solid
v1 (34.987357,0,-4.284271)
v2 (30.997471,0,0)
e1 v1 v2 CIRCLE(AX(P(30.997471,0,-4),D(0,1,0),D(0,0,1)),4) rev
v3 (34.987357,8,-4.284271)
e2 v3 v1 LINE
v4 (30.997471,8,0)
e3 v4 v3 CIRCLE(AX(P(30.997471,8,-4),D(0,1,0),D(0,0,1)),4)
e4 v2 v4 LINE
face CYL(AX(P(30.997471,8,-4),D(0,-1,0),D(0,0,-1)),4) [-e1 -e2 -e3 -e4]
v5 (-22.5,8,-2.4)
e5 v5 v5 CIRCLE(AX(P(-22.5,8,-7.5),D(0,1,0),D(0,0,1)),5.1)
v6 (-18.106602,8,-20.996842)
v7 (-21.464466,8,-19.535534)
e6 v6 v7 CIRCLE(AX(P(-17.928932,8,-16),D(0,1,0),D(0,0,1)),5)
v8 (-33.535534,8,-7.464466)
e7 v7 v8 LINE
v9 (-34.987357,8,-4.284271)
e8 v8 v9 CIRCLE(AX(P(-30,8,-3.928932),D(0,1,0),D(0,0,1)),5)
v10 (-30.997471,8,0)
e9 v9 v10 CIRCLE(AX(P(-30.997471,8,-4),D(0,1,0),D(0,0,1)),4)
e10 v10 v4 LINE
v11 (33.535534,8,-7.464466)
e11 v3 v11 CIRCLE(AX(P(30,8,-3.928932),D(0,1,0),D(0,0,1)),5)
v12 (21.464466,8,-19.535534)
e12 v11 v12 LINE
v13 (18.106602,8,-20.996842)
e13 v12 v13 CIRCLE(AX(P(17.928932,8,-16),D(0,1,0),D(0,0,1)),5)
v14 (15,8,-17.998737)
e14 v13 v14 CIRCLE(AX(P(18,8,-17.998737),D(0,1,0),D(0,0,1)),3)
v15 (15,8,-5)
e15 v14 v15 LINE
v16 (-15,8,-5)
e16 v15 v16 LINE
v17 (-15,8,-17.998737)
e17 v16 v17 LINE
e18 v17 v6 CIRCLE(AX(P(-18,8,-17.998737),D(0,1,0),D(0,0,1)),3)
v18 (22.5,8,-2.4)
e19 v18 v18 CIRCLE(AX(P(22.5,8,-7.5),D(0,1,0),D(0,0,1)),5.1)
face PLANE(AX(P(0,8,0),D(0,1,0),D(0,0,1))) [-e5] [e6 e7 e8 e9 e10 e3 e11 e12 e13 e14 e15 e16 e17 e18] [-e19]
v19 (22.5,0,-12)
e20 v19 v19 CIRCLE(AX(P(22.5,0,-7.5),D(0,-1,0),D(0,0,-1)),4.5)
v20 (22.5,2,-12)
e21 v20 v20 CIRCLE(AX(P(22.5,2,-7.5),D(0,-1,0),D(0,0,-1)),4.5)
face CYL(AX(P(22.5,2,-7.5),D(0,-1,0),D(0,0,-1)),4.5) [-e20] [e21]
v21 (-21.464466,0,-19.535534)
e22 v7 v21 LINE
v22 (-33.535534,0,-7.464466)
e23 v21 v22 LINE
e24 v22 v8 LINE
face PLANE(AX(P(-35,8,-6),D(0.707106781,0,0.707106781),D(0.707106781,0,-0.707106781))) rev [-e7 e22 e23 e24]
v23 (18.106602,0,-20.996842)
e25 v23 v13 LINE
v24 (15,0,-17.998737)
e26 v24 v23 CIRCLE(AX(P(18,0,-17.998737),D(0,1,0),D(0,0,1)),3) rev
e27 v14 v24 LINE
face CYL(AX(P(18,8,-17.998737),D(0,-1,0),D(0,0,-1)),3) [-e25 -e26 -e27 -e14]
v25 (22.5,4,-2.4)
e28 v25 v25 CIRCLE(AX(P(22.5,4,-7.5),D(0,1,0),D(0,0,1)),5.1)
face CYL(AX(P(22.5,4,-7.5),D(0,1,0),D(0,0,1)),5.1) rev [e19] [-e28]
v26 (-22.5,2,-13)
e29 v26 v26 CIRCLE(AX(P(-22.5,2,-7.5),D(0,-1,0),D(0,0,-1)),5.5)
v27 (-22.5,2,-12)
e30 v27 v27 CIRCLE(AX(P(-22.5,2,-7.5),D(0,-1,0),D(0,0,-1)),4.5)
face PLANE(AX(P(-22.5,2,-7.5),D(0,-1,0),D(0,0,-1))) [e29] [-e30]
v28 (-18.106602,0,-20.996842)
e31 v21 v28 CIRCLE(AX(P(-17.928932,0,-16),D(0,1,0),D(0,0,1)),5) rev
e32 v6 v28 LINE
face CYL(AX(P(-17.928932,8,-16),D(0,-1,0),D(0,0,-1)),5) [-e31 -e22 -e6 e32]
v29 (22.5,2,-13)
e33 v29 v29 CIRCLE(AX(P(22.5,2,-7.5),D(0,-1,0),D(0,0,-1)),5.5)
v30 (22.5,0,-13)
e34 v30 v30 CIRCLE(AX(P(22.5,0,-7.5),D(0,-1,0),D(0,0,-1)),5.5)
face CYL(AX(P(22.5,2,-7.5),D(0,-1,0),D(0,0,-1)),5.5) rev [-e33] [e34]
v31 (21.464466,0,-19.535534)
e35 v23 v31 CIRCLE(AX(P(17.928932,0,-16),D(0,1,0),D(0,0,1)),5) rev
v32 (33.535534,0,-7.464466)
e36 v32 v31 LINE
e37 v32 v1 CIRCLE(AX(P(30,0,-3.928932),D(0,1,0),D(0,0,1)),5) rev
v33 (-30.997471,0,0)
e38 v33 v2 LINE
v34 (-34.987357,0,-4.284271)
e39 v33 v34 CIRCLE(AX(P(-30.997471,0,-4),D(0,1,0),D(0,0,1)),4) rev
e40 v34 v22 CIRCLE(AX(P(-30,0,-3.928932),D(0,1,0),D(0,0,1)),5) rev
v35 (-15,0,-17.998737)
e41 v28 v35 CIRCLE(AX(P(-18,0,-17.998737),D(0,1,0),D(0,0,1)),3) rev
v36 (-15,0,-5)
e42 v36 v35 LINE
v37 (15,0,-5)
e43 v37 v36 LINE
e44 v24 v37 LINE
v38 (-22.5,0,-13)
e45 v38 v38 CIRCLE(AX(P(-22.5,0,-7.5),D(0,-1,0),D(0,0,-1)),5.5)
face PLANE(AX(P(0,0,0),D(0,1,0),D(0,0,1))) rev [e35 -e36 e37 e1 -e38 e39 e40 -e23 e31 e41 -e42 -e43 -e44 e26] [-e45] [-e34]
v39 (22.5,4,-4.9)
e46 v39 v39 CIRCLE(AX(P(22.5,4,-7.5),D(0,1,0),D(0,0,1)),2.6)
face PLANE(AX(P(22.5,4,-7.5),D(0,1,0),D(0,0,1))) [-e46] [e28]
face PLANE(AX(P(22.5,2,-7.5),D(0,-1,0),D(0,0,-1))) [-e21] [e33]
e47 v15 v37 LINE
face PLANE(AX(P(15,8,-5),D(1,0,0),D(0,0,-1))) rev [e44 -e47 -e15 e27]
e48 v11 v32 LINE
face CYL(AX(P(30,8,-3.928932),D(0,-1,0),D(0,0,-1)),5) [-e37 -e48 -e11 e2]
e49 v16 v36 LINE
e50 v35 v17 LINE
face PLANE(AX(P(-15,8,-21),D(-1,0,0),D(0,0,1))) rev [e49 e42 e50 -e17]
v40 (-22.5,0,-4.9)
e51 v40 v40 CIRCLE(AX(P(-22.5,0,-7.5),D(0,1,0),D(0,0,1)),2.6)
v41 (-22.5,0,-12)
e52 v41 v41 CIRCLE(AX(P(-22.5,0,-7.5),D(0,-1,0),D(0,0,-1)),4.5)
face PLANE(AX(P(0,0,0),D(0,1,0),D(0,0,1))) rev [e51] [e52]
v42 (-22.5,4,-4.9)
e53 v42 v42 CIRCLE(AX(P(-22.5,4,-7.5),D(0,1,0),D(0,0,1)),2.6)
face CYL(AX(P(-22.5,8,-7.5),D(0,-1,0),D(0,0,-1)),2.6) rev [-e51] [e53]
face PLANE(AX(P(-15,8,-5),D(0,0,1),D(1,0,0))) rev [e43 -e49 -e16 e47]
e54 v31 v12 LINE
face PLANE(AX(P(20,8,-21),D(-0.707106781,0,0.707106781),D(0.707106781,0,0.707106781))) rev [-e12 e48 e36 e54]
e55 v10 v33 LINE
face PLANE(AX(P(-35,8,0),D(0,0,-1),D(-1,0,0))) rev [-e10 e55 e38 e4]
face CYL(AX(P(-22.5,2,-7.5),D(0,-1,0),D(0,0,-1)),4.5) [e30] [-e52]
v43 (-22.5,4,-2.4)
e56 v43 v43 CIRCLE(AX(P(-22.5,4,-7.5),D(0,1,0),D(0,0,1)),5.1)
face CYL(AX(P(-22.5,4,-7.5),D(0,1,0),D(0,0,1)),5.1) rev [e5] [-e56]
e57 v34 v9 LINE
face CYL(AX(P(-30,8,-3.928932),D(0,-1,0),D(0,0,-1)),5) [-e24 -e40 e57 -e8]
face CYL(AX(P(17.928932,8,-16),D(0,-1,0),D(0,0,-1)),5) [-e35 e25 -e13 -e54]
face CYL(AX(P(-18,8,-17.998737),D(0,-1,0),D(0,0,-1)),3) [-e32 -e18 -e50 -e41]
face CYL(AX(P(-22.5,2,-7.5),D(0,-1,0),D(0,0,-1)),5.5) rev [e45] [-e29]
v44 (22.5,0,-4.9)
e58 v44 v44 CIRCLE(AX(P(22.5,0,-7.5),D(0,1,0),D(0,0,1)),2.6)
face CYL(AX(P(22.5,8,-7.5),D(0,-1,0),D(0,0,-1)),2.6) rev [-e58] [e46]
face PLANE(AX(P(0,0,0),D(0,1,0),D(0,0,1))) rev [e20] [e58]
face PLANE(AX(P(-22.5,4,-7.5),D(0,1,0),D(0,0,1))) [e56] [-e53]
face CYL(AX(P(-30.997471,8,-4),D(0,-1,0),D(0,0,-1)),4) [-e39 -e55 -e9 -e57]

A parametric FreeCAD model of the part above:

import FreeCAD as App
import Part
import Sketcher
Q = App.Units.Quantity


def edges_at(feature, points):
    """Names of the edges that pass closest to the given points."""
    edges = feature.Shape.Edges
    near = lambda p: min(range(len(edges)), key=lambda i: edges[i].distToShape(Part.Vertex(*p))[0])
    return sorted({f"Edge{near(p) + 1}" for p in points})

doc = App.newDocument("Part")
body = doc.addObject("PartDesign::Body", "Body")

sketch1 = body.newObject("Sketcher::SketchObject", "Sketch")
sketch1.AttachmentSupport = (doc.getObject("XZ_Plane"), [""])
sketch1.MapMode = "FlatFace"
sketch1.addGeometry(Part.LineSegment(App.Vector(-35, 0, 0), App.Vector(35, 0, 0)), False)
sketch1.addGeometry(Part.LineSegment(App.Vector(35, 0, 0), App.Vector(35, -6, 0)), False)
sketch1.addGeometry(Part.LineSegment(App.Vector(35, -6, 0), App.Vector(20, -21, 0)), False)
sketch1.addGeometry(Part.LineSegment(App.Vector(20, -21, 0), App.Vector(15, -21, 0)), False)
sketch1.addGeometry(Part.LineSegment(App.Vector(15, -21, 0), App.Vector(15, -5, 0)), False)
sketch1.addGeometry(Part.LineSegment(App.Vector(15, -5, 0), App.Vector(-15, -5, 0)), False)
sketch1.addGeometry(Part.LineSegment(App.Vector(-15, -5, 0), App.Vector(-15, -21, 0)), False)
sketch1.addGeometry(Part.LineSegment(App.Vector(-15, -21, 0), App.Vector(-20, -21, 0)), False)
sketch1.addGeometry(Part.LineSegment(App.Vector(-20, -21, 0), App.Vector(-35, -6, 0)), False)
sketch1.addGeometry(Part.LineSegment(App.Vector(-35, -6, 0), App.Vector(-35, 0, 0)), False)
sketch1.addGeometry(Part.Circle(App.Vector(-22.5, -7.5, 0), App.Vector(0, 0, 1), 2.6), False)
sketch1.addGeometry(Part.Circle(App.Vector(22.5, -7.5, 0), App.Vector(0, 0, 1), 2.6), False)
sketch1.addConstraint(Sketcher.Constraint("Coincident", 0, 2, 1, 1))
sketch1.addConstraint(Sketcher.Constraint("Coincident", 1, 2, 2, 1))
sketch1.addConstraint(Sketcher.Constraint("Coincident", 2, 2, 3, 1))
sketch1.addConstraint(Sketcher.Constraint("Coincident", 3, 2, 4, 1))
sketch1.addConstraint(Sketcher.Constraint("Coincident", 4, 2, 5, 1))
sketch1.addConstraint(Sketcher.Constraint("Coincident", 5, 2, 6, 1))
sketch1.addConstraint(Sketcher.Constraint("Coincident", 6, 2, 7, 1))
sketch1.addConstraint(Sketcher.Constraint("Coincident", 7, 2, 8, 1))
sketch1.addConstraint(Sketcher.Constraint("Coincident", 8, 2, 9, 1))
sketch1.addConstraint(Sketcher.Constraint("Coincident", 9, 2, 0, 1))
sketch1.addConstraint(Sketcher.Constraint("Horizontal", 0))
sketch1.addConstraint(Sketcher.Constraint("Vertical", 1))
sketch1.addConstraint(Sketcher.Constraint("Horizontal", 3))
sketch1.addConstraint(Sketcher.Constraint("Vertical", 4))
sketch1.addConstraint(Sketcher.Constraint("Horizontal", 5))
sketch1.addConstraint(Sketcher.Constraint("Vertical", 6))
sketch1.addConstraint(Sketcher.Constraint("Horizontal", 7))
sketch1.addConstraint(Sketcher.Constraint("Vertical", 9))
sketch1.addConstraint(Sketcher.Constraint("Equal", 10, 11))
sketch1.addConstraint(Sketcher.Constraint("Symmetric", 0, 2, 9, 2, -1, 1))
sketch1.addConstraint(Sketcher.Constraint("Symmetric", 10, 3, 11, 3, -2))
sketch1.addConstraint(Sketcher.Constraint("Symmetric", 3, 2, 6, 2, -2))
sketch1.addConstraint(Sketcher.Constraint("Perpendicular", 2, 8))
sketch1.addConstraint(Sketcher.Constraint("Horizontal", 1, 2, 8, 2))
sketch1.addConstraint(Sketcher.Constraint("Equal", 3, 7))
sketch1.addConstraint(Sketcher.Constraint("Diameter", 10, Q("5.2 mm")))
sketch1.addConstraint(Sketcher.Constraint("DistanceX", 0, 1, 0, 2, Q("70 mm")))
sketch1.addConstraint(Sketcher.Constraint("DistanceX", 3, 2, 3, 1, Q("5 mm")))
sketch1.addConstraint(Sketcher.Constraint("DistanceX", 5, 2, 5, 1, Q("30 mm")))
sketch1.addConstraint(Sketcher.Constraint("DistanceY", 1, 2, 1, 1, Q("6 mm")))
sketch1.addConstraint(Sketcher.Constraint("DistanceY", 4, 1, 4, 2, Q("16 mm")))
sketch1.addConstraint(Sketcher.Constraint("DistanceX", 10, 3, 11, 3, Q("45 mm")))
sketch1.addConstraint(Sketcher.Constraint("DistanceY", 10, 3, -1, 1, Q("7.5 mm")))
pad1 = body.newObject("PartDesign::Pad", "Pad")
pad1.Profile = sketch1
pad1.Length = 8
pad1.Reversed = True

sketch2 = body.newObject("Sketcher::SketchObject", "Sketch001")
sketch2.AttachmentSupport = (doc.getObject("XZ_Plane"), [""])
sketch2.MapMode = "FlatFace"
sketch2.AttachmentOffset = App.Placement(App.Vector(0, 0, -8), App.Rotation())
sketch2.addGeometry(Part.Circle(App.Vector(-22, -8, 0), App.Vector(0, 0, 1), 5), False)
sketch2.addGeometry(Part.Circle(App.Vector(22, -8, 0), App.Vector(0, 0, 1), 5), False)
sketch2.addConstraint(Sketcher.Constraint("Equal", 0, 1))
sketch2.addConstraint(Sketcher.Constraint("Symmetric", 0, 3, 1, 3, -2))
sketch2.addConstraint(Sketcher.Constraint("Diameter", 0, Q("10.2 mm")))
sketch2.addConstraint(Sketcher.Constraint("DistanceX", 0, 3, 1, 3, Q("45 mm")))
sketch2.addConstraint(Sketcher.Constraint("DistanceY", 0, 3, -1, 1, Q("7.5 mm")))
pocket1 = body.newObject("PartDesign::Pocket", "Pocket")
pocket1.Profile = sketch2
pocket1.Length = 4
pocket1.Reversed = True

sketch3 = body.newObject("Sketcher::SketchObject", "Sketch002")
sketch3.AttachmentSupport = (doc.getObject("XZ_Plane"), [""])
sketch3.MapMode = "FlatFace"
sketch3.addGeometry(Part.Circle(App.Vector(-22.5, -7.5, 0), App.Vector(0, 0, 1), 5.5), False)
sketch3.addGeometry(Part.Circle(App.Vector(-22.5, -7.5, 0), App.Vector(0, 0, 1), 4.5), False)
sketch3.addGeometry(Part.Circle(App.Vector(22.5, -7.5, 0), App.Vector(0, 0, 1), 5.5), False)
sketch3.addGeometry(Part.Circle(App.Vector(22.5, -7.5, 0), App.Vector(0, 0, 1), 4.5), False)
sketch3.addConstraint(Sketcher.Constraint("Coincident", 1, 3, 0, 3))
sketch3.addConstraint(Sketcher.Constraint("Coincident", 3, 3, 2, 3))
sketch3.addConstraint(Sketcher.Constraint("Equal", 0, 2))
sketch3.addConstraint(Sketcher.Constraint("Equal", 1, 3))
sketch3.addConstraint(Sketcher.Constraint("Symmetric", 0, 3, 2, 3, -2))
sketch3.addConstraint(Sketcher.Constraint("Diameter", 0, Q("11 mm")))
sketch3.addConstraint(Sketcher.Constraint("Diameter", 1, Q("9 mm")))
sketch3.addConstraint(Sketcher.Constraint("DistanceX", 0, 3, 2, 3, Q("45 mm")))
sketch3.addConstraint(Sketcher.Constraint("DistanceY", 0, 3, -1, 1, Q("7.5 mm")))
pocket2 = body.newObject("PartDesign::Pocket", "Pocket001")
pocket2.Profile = sketch3
pocket2.Length = 2
doc.recompute()

fillet = body.newObject("PartDesign::Fillet", "Fillet")
fillet.Base = (pocket2, edges_at(pocket2, [
    (-35, 4, -6),
    (-20, 4, -21),
    (20, 4, -21),
    (35, 4, -6),
]))
fillet.Radius = 5
doc.recompute()

fillet2 = body.newObject("PartDesign::Fillet", "Fillet001")
fillet2.Base = (fillet, edges_at(fillet, [(-15, 4, -21), (15, 4, -21)]))
fillet2.Radius = 3
doc.recompute()

fillet3 = body.newObject("PartDesign::Fillet", "Fillet002")
fillet3.Base = (fillet2, edges_at(fillet2, [(-35, 4, 0), (35, 4, 0)]))
fillet3.Radius = 4

doc.recompute()
